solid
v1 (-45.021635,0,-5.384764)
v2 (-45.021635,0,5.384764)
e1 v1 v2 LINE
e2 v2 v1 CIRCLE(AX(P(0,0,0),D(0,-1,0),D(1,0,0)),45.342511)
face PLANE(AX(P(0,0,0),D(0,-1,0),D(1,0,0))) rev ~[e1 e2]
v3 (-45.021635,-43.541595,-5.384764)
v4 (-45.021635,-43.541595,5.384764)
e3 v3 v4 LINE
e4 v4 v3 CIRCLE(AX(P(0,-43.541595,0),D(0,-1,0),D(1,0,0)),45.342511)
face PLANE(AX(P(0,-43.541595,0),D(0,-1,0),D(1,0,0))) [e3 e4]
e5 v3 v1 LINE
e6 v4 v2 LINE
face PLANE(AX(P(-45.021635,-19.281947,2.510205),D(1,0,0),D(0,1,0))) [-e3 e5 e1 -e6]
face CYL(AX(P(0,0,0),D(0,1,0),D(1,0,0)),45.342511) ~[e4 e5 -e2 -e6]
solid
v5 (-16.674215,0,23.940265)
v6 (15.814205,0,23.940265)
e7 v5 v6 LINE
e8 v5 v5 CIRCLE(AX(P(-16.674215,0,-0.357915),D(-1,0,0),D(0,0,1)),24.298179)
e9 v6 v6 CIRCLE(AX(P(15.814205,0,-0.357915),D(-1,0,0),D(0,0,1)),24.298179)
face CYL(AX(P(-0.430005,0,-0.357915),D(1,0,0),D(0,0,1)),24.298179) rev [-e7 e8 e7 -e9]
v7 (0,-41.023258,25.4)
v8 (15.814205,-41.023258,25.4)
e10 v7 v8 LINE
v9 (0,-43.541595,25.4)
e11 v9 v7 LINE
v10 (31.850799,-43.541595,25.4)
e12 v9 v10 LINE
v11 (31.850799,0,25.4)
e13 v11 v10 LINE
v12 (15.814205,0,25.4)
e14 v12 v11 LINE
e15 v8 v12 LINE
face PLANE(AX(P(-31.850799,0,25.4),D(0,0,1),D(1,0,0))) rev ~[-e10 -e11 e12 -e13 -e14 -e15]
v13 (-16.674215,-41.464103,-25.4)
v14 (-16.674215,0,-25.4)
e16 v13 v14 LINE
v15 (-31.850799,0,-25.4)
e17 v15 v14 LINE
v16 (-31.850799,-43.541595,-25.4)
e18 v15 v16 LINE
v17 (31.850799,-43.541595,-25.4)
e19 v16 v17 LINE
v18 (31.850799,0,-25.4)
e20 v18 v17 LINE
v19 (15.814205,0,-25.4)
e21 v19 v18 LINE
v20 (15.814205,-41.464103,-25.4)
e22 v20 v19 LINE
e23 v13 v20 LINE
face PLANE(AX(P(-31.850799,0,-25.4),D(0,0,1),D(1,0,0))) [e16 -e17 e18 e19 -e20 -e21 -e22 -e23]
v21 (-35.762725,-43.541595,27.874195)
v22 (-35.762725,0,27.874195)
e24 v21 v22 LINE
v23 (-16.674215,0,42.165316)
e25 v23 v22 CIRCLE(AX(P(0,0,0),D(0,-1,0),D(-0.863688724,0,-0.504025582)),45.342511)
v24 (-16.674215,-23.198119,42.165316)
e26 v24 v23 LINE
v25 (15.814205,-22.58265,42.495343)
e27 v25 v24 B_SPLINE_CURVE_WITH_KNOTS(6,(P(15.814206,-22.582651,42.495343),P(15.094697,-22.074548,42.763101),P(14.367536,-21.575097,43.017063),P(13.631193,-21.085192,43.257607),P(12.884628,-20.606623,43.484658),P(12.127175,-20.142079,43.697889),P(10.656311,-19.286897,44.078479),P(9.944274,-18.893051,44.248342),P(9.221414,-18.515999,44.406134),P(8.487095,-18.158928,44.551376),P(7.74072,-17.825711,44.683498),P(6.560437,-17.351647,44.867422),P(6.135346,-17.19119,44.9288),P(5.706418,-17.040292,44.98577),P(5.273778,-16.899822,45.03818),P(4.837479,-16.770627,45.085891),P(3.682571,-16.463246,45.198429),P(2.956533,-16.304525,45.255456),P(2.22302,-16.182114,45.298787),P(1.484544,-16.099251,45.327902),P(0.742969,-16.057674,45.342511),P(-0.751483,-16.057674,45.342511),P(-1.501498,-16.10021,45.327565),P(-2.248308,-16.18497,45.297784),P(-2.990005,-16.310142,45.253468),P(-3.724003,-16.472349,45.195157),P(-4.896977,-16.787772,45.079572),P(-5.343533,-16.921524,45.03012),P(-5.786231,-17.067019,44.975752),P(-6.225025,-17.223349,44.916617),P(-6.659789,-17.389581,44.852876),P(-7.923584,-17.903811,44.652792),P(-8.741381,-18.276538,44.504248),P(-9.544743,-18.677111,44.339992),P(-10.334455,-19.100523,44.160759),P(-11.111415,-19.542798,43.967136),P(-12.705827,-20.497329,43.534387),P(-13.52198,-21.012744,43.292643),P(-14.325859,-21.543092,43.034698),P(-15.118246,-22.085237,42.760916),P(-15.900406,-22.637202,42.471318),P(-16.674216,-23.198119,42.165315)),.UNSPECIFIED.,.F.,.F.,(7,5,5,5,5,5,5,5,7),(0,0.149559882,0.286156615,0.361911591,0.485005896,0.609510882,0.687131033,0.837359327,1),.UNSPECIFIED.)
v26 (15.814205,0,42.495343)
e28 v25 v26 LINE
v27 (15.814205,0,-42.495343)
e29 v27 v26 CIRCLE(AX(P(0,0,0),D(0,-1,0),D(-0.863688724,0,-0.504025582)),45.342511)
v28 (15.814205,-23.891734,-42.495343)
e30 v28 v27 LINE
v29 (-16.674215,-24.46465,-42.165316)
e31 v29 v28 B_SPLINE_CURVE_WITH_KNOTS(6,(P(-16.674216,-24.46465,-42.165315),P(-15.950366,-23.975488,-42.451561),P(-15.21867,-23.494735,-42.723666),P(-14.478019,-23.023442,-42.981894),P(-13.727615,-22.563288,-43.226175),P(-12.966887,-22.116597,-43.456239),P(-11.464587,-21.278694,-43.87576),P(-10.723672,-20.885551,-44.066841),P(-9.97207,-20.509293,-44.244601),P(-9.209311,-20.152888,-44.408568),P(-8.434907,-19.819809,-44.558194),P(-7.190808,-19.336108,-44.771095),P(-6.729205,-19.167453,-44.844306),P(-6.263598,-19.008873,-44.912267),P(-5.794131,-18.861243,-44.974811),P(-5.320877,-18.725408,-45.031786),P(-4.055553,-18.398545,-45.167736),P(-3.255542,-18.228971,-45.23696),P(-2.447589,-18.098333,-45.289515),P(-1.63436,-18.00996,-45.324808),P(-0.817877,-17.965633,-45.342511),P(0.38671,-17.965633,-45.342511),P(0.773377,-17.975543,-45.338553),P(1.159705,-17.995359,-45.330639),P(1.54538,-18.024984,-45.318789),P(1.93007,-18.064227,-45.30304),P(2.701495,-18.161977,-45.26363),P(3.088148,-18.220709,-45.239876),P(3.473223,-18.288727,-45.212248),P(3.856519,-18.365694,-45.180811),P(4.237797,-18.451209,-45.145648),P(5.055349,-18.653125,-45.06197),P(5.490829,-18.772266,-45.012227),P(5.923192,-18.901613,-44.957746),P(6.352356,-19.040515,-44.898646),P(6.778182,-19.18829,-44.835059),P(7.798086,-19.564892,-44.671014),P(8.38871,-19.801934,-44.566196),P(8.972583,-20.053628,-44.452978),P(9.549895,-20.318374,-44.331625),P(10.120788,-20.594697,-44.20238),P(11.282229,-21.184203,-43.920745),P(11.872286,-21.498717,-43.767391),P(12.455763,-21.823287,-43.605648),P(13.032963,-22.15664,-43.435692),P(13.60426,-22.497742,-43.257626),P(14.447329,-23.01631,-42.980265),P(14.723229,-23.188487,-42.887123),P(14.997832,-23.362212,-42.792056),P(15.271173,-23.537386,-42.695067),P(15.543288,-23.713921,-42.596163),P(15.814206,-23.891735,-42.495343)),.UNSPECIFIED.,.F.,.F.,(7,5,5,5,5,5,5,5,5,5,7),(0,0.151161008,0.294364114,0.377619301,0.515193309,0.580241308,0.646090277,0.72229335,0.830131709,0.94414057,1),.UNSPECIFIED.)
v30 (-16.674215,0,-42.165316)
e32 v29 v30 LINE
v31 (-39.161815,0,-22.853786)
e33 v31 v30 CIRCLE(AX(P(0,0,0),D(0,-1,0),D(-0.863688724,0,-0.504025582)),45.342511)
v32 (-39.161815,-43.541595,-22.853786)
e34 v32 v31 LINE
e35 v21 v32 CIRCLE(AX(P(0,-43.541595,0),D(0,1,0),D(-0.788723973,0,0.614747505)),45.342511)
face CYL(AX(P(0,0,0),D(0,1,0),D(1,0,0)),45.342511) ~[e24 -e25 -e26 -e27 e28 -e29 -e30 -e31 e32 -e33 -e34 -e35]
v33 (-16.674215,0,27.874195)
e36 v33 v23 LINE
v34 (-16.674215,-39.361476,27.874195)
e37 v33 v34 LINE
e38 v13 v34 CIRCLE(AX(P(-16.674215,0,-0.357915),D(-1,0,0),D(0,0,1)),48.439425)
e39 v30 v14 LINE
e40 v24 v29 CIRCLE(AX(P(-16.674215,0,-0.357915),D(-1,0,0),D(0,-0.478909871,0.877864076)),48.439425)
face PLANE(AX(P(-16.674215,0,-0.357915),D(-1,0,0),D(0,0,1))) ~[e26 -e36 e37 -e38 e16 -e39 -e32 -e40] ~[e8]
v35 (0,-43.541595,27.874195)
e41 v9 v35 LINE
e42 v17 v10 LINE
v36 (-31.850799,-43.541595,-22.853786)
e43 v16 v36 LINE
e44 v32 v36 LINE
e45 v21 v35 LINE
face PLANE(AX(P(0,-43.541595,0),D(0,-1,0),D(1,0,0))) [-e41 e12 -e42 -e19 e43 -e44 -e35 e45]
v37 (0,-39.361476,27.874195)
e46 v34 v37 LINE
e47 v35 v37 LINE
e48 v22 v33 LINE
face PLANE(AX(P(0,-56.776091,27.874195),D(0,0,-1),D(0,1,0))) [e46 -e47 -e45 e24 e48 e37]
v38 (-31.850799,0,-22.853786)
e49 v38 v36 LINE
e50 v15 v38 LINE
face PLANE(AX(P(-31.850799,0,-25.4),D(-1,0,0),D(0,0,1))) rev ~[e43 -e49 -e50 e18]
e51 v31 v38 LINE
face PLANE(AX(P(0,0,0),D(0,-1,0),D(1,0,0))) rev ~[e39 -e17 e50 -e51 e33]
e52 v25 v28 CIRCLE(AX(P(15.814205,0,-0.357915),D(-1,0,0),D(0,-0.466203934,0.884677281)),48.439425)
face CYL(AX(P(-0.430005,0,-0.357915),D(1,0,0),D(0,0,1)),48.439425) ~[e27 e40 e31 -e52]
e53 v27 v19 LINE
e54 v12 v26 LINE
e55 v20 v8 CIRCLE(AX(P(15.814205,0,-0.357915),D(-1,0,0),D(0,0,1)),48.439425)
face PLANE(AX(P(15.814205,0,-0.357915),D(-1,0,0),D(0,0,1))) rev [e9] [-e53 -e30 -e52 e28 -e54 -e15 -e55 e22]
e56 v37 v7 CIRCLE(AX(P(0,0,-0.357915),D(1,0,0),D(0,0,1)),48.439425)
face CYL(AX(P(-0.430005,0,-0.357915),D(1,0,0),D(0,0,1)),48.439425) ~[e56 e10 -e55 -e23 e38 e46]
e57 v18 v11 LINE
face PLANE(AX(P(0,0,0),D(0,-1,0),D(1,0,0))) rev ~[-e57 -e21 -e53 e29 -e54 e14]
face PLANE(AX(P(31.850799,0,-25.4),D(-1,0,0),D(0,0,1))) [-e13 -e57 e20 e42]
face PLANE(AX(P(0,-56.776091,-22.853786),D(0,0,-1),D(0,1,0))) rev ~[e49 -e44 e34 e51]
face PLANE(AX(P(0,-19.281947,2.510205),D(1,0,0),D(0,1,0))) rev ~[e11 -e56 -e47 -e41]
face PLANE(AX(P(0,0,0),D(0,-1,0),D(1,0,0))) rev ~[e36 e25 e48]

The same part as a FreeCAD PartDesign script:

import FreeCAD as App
import Part
import Sketcher
from FreeCAD import Vector
Q = App.Units.Quantity


def add_polygon(sketch, points):
    """Adds a closed chain of lines whose ends are joined by coincident constraints."""
    first, n = sketch.GeometryCount, len(points)
    for a, b in zip(points, points[1:] + points[:1]):
        sketch.addGeometry(Part.LineSegment(App.Vector(*a, 0), App.Vector(*b, 0)), False)
    for i in range(n):
        sketch.addConstraint(Sketcher.Constraint("Coincident", first + i, 2, first + (i + 1) % n, 1))

doc = App.newDocument("Part")
body = doc.addObject("PartDesign::Body", "Body")
body.AllowCompound = True

# Sketch on XZ plane
sketch1 = body.newObject("Sketcher::SketchObject", "Sketch")
sketch1.AttachmentSupport = (doc.getObject("XZ_Plane"), [""])
sketch1.MapMode = "FlatFace"
sketch1.addGeometry(Part.Circle(Vector(0, 0, 0), Vector(0, 0, 1), 45), False)  # 0
add_polygon(sketch1, [(32, -25), (-32, -25), (-32, 25), (32, 25)])  # lines 1-4
sketch1.addConstraint([
    Sketcher.Constraint("Horizontal", 1),
    Sketcher.Constraint("Vertical", 2),
    Sketcher.Constraint("Horizontal", 3),
    Sketcher.Constraint("Vertical", 4),
    Sketcher.Constraint("Coincident", 0, 3, -1, 1),
    Sketcher.Constraint("Symmetric", 1, 2, 3, 2, -1, 1),
    Sketcher.Constraint("DistanceY", 2, 1, 2, 2, Q("2 in")),
    Sketcher.Constraint("Diameter", 0, Q("90.685022 mm")),
    Sketcher.Constraint("DistanceX", 1, 2, -1, 1, Q("31.850799 mm")),
])
pad1 = body.newObject("PartDesign::Pad", "Pad")
pad1.Profile = sketch1
pad1.Length = 43.541595

# Sketch on YZ plane
sketch2 = body.newObject("Sketcher::SketchObject", "Sketch001")
sketch2.AttachmentSupport = (doc.getObject("YZ_Plane"), [""])
sketch2.MapMode = "FlatFace"
add_polygon(sketch2, [(-57, 28), (-57, -23), (18, -23), (18, 28)])  # lines 0-3
sketch2.addConstraint([
    Sketcher.Constraint("Vertical", 0),
    Sketcher.Constraint("Horizontal", 1),
    Sketcher.Constraint("Vertical", 2),
    Sketcher.Constraint("Horizontal", 3),
    Sketcher.Constraint("DistanceX", 1, 1, 1, 2, Q("74.988289 mm")),
    Sketcher.Constraint("DistanceY", 0, 2, 0, 1, Q("50.727981 mm")),
    Sketcher.Constraint("DistanceX", 0, 2, -1, 1, Q("56.776091 mm")),
    Sketcher.Constraint("DistanceY", 0, 2, -1, 1, Q("22.853786 mm")),
])
pocket1 = body.newObject("PartDesign::Pocket", "Pocket")
pocket1.Profile = sketch2
pocket1.Length = 45.021635

# Sketch on XZ plane
sketch3 = body.newObject("Sketcher::SketchObject", "Sketch002")
sketch3.AttachmentSupport = (doc.getObject("XZ_Plane"), [""])
sketch3.MapMode = "FlatFace"
add_polygon(sketch3, [(-17, 48), (-17, 24), (16, 24), (16, 48)])  # lines 0-3
sketch3.addGeometry(Part.LineSegment(Vector(16, 0, 0), Vector(-17, 0, 0)), True)  # axis
sketch3.addConstraint([
    Sketcher.Constraint("Vertical", 0),
    Sketcher.Constraint("Horizontal", 1),
    Sketcher.Constraint("Vertical", 2),
    Sketcher.Constraint("Horizontal", 3),
    Sketcher.Constraint("Horizontal", 4),
    Sketcher.Constraint("Vertical", 2, 2, 4, 1),
    Sketcher.Constraint("Vertical", 3, 2, 4, 2),
    Sketcher.Constraint("DistanceX", 1, 1, 1, 2, Q("32.488421 mm")),
    Sketcher.Constraint("DistanceY", 0, 2, 0, 1, Q("24.141245 mm")),
    Sketcher.Constraint("DistanceY", -1, 1, 2, 2, Q("48.08151 mm")),
    Sketcher.Constraint("DistanceY", 4, 1, 1, 2, Q("24.298179 mm")),
    Sketcher.Constraint("DistanceX", 0, 2, -1, 1, Q("16.674215 mm")),
])
revolution = body.newObject("PartDesign::Revolution", "Revolution")
revolution.Profile = sketch3
revolution.ReferenceAxis = (sketch3, ["Axis0"])
revolution.Angle = 360

doc.recompute()
